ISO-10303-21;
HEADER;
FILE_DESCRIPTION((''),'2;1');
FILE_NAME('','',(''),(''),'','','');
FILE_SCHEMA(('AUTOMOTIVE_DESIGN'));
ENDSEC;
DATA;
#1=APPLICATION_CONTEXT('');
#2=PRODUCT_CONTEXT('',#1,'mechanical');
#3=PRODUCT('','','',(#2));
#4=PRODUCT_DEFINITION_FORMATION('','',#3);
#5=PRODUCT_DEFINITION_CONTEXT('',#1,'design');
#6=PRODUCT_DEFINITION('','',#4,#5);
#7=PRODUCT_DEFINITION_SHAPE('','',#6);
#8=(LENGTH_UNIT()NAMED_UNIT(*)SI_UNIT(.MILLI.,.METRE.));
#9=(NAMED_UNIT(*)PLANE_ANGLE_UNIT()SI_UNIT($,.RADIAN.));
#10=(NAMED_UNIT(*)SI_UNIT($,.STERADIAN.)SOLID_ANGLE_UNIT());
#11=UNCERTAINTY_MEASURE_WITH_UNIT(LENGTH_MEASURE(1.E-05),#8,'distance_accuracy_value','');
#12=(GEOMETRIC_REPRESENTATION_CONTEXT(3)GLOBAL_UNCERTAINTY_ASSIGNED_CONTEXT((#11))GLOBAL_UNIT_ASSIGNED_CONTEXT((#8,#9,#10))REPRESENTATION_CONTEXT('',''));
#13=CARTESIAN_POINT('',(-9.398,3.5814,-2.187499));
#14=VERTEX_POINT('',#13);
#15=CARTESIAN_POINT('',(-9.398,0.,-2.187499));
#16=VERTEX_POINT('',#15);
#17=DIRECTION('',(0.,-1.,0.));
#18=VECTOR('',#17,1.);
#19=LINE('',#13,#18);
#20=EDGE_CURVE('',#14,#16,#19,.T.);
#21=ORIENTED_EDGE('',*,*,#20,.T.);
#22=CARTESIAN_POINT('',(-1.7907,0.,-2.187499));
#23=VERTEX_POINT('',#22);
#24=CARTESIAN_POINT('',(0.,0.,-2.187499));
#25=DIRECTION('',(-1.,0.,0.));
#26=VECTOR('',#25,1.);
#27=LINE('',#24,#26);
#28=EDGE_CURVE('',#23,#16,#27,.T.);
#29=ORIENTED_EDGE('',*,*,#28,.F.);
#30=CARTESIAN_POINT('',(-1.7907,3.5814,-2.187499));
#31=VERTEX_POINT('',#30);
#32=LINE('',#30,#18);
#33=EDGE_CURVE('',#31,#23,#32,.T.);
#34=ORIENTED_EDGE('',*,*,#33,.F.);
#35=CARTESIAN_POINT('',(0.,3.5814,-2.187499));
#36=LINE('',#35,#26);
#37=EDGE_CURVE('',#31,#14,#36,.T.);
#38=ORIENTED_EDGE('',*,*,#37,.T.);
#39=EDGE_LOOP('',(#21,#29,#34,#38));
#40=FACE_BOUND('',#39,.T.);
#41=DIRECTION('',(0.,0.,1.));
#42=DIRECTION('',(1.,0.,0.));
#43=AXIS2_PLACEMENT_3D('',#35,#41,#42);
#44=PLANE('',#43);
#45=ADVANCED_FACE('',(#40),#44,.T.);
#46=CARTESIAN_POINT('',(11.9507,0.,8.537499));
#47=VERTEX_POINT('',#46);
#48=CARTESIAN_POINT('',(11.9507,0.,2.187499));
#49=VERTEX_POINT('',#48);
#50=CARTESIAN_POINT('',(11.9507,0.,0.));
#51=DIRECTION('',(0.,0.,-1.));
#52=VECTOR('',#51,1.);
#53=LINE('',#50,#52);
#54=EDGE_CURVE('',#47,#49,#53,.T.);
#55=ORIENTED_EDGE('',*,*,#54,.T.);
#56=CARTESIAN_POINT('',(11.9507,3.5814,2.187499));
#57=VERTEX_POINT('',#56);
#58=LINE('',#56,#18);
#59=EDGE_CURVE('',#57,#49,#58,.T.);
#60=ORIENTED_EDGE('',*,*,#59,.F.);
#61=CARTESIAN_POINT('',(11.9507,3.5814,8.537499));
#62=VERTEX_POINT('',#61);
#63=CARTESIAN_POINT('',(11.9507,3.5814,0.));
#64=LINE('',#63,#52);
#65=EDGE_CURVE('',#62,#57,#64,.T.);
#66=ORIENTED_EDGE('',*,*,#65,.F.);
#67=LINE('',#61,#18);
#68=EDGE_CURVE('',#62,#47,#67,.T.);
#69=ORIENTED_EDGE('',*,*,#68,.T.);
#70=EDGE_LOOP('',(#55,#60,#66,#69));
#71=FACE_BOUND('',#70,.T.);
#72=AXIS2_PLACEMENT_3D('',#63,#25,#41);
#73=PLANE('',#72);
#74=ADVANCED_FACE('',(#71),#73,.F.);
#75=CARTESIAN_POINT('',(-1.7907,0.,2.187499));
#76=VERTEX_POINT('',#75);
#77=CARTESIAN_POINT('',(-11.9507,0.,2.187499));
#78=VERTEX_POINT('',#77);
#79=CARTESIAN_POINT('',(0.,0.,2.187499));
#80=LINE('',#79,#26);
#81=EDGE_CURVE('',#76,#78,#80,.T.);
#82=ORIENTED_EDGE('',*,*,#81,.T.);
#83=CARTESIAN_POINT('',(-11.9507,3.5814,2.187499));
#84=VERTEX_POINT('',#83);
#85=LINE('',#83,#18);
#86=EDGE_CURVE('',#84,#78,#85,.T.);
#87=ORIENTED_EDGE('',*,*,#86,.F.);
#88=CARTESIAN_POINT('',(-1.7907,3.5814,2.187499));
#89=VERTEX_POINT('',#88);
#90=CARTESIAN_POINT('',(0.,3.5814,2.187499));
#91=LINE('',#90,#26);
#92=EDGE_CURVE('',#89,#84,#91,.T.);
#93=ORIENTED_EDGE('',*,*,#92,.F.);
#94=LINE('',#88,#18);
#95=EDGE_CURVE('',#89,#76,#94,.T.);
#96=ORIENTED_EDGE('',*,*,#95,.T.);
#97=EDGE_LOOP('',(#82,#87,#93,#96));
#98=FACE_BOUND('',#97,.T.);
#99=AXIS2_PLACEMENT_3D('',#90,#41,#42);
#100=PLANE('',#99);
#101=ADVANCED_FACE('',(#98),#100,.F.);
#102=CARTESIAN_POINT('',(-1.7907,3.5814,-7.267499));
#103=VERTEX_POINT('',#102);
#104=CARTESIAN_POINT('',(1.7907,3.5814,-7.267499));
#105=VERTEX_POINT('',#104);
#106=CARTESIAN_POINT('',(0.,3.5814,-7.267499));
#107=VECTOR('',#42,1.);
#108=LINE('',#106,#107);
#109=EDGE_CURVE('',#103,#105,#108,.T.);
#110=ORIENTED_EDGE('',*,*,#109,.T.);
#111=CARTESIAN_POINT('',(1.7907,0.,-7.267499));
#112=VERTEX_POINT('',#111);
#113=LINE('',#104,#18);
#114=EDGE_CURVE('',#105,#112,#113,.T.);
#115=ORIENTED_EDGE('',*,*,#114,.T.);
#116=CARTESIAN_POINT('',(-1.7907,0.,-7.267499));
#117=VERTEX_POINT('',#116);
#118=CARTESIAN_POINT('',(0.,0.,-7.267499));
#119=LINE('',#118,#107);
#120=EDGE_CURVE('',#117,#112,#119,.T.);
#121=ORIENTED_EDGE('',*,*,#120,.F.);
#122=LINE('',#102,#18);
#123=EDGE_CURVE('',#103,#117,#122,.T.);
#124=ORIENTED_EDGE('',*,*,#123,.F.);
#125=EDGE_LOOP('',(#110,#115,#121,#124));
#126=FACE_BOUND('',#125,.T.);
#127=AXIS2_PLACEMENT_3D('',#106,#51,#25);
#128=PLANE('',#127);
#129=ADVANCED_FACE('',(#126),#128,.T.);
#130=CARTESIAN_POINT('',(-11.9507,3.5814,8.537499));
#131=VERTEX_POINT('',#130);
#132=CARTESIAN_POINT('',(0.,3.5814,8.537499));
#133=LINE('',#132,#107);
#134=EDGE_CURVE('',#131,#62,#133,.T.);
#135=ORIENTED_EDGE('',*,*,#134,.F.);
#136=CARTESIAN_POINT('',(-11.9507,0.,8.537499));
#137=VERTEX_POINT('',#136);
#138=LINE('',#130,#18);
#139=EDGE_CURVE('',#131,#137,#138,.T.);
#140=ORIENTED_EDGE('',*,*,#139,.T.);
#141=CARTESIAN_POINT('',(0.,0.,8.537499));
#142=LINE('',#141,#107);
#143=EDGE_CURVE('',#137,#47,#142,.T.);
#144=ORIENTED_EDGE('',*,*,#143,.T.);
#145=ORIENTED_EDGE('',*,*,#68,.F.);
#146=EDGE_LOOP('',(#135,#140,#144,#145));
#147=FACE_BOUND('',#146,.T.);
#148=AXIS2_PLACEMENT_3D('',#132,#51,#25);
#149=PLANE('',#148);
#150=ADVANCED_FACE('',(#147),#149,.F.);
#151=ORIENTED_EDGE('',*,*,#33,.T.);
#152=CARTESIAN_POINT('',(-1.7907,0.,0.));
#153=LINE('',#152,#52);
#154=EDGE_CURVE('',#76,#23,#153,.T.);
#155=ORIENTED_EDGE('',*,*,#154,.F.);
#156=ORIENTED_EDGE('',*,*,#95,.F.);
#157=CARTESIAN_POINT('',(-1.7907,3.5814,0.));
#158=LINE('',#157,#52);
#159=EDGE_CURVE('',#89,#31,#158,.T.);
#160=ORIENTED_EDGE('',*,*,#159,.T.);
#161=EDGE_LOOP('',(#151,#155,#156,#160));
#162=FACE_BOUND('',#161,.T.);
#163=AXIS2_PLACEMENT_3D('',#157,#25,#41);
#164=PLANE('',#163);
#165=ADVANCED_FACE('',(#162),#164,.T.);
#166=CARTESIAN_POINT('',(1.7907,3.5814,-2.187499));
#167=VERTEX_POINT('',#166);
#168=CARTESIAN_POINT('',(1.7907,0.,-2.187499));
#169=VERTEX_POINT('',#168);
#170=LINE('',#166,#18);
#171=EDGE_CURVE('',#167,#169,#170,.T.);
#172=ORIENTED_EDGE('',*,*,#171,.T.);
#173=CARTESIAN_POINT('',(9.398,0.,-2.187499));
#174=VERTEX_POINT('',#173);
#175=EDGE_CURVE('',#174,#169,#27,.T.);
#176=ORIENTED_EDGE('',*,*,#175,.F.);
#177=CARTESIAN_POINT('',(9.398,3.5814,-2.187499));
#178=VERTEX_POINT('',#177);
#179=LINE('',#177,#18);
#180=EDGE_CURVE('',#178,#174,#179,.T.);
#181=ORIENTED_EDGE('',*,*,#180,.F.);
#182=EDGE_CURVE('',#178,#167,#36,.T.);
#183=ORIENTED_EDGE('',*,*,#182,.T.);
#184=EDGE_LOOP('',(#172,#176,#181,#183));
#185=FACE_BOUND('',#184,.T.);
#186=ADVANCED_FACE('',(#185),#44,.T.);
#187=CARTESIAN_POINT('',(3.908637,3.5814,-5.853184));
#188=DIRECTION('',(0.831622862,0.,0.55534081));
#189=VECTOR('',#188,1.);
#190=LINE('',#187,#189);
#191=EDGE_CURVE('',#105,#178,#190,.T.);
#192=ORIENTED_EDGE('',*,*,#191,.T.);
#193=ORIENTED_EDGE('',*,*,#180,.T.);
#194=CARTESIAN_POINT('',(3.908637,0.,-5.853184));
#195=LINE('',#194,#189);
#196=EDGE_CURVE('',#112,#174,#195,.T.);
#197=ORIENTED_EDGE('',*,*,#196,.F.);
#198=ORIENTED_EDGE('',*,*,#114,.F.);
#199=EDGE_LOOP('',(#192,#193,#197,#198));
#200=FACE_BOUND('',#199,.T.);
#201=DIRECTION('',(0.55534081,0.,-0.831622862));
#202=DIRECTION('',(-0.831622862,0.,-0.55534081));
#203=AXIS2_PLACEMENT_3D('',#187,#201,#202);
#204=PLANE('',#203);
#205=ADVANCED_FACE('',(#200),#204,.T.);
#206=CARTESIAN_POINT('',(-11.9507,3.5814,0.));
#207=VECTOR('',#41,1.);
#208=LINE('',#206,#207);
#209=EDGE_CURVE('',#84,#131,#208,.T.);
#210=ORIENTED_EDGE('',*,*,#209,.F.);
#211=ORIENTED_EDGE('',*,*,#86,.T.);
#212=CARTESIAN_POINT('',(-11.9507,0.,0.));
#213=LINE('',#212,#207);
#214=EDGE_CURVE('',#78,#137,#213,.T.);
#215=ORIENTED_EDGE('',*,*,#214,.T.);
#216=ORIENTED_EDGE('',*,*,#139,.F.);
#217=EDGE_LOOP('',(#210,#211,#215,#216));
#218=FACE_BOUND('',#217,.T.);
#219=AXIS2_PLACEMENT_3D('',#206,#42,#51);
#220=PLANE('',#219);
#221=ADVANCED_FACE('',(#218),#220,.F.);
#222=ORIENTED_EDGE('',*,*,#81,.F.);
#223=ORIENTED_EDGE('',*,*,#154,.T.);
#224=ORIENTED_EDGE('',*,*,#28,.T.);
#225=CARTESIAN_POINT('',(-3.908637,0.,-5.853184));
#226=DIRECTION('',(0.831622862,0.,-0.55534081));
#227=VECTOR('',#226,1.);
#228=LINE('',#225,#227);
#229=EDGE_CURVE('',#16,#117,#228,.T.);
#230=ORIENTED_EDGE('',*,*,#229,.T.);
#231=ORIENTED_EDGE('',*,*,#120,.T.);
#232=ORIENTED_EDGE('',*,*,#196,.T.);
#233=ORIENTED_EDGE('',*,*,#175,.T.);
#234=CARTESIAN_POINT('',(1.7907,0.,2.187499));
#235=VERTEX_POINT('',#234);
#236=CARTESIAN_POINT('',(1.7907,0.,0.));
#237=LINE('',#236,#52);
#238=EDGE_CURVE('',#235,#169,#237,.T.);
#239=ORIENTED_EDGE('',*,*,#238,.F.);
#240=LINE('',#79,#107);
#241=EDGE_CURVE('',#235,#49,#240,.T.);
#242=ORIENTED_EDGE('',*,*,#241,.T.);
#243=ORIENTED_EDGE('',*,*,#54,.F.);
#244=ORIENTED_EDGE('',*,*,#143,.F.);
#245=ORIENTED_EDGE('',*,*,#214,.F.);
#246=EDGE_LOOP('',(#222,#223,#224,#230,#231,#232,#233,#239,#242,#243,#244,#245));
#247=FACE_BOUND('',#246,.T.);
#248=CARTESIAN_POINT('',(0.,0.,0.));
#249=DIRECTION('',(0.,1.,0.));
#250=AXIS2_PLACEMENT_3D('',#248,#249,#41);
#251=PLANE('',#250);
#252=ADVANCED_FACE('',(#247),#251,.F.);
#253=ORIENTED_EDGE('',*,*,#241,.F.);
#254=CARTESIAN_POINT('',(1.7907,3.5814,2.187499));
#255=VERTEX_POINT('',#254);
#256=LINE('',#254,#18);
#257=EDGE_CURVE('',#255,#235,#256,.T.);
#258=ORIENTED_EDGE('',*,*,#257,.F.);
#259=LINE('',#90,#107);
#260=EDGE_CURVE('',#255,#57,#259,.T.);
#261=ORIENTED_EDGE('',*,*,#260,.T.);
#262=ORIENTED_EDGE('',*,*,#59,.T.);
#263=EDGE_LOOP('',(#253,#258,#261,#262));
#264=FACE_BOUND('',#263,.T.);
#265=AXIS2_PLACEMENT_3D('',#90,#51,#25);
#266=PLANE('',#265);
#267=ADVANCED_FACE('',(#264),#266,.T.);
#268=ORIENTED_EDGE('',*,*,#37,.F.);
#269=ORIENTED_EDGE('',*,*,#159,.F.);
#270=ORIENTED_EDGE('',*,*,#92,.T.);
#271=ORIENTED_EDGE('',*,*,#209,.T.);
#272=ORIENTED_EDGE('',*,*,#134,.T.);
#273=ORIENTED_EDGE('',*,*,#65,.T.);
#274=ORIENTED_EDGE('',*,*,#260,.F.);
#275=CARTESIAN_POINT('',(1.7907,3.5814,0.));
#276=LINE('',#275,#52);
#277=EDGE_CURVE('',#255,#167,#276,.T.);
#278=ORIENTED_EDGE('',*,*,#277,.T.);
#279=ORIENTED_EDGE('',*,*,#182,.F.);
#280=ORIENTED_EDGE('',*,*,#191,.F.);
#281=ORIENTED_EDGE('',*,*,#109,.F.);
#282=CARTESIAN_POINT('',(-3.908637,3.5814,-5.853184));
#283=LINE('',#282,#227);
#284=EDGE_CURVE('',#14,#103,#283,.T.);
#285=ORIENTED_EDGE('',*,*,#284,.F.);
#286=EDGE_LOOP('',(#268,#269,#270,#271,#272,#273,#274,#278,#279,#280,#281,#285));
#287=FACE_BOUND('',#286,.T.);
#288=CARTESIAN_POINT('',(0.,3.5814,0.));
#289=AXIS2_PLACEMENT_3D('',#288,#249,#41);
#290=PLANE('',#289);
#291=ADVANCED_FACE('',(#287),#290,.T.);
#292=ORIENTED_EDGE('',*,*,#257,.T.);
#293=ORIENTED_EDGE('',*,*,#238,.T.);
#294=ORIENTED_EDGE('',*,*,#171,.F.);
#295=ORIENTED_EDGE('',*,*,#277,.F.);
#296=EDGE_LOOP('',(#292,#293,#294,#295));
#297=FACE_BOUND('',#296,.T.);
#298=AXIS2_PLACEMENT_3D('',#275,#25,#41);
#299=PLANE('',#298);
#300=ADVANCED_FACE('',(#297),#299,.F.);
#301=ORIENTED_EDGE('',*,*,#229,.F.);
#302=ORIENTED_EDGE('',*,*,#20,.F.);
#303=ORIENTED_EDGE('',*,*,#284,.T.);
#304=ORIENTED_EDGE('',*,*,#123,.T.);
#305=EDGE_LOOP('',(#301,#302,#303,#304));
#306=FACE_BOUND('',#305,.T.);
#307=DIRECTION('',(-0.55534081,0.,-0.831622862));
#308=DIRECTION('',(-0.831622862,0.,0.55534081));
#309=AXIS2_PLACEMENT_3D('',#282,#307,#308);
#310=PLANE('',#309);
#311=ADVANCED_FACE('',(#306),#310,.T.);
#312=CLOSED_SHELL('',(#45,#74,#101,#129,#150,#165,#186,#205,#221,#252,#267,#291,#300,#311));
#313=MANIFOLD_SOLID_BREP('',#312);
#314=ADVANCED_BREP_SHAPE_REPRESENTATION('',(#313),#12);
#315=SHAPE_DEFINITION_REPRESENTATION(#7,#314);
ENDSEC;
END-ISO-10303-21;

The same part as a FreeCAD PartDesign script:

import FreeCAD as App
import Part
import Sketcher
Q = App.Units.Quantity


def add_polygon(sketch, points):
    """Adds a closed chain of lines whose ends are joined by coincident constraints."""
    first, n = sketch.GeometryCount, len(points)
    for a, b in zip(points, points[1:] + points[:1]):
        sketch.addGeometry(Part.LineSegment(App.Vector(*a, 0), App.Vector(*b, 0)), False)
    for i in range(n):
        sketch.addConstraint(Sketcher.Constraint("Coincident", first + i, 2, first + (i + 1) % n, 1))

doc = App.newDocument("Part")
body = doc.addObject("PartDesign::Body", "Body")

# Sketch on XZ plane
sketch1 = body.newObject("Sketcher::SketchObject", "Sketch")
sketch1.AttachmentSupport = (doc.getObject("XZ_Plane"), [""])
sketch1.MapMode = "FlatFace"
add_polygon(sketch1, [(-11.9507, 8.537499), (11.9507, 8.537499), (11.9507, 2.187499), (1.7907, 2.187499), (1.7907, -2.187499), (9.398, -2.187499), (1.7907, -7.267499), (-1.7907, -7.267499), (-9.398, -2.187499), (-1.7907, -2.187499), (-1.7907, 2.187499), (-11.9507, 2.187499)])  # lines 0-11
sketch1.addConstraint(Sketcher.Constraint("Horizontal", 0))
sketch1.addConstraint(Sketcher.Constraint("Vertical", 1))
sketch1.addConstraint(Sketcher.Constraint("Horizontal", 2))
sketch1.addConstraint(Sketcher.Constraint("Vertical", 3))
sketch1.addConstraint(Sketcher.Constraint("Horizontal", 4))
sketch1.addConstraint(Sketcher.Constraint("Horizontal", 6))
sketch1.addConstraint(Sketcher.Constraint("Horizontal", 8))
sketch1.addConstraint(Sketcher.Constraint("Vertical", 9))
sketch1.addConstraint(Sketcher.Constraint("Horizontal", 10))
sketch1.addConstraint(Sketcher.Constraint("Vertical", 11))
sketch1.addConstraint(Sketcher.Constraint("Symmetric", 2, 2, 8, 2, -1, 1))
sketch1.addConstraint(Sketcher.Constraint("Symmetric", 4, 2, 7, 2, -2))
sketch1.addConstraint(Sketcher.Constraint("Symmetric", 1, 2, 10, 2, -2))
sketch1.addConstraint(Sketcher.Constraint("Vertical", 3, 2, 5, 2))
sketch1.addConstraint(Sketcher.Constraint("Vertical", 6, 2, 8, 2))
sketch1.addConstraint(Sketcher.Constraint("DistanceX", 2, 2, 2, 1, Q("0.4 in")))
sketch1.addConstraint(Sketcher.Constraint("DistanceY", 1, 2, 1, 1, Q("0.25 in")))
sketch1.addConstraint(Sketcher.Constraint("DistanceY", 5, 2, 3, 2, Q("0.2 in")))
sketch1.addConstraint(Sketcher.Constraint("DistanceX", 0, 1, 0, 2, Q("0.941 in")))
sketch1.addConstraint(Sketcher.Constraint("DistanceX", -1, 1, 4, 2, Q("0.37 in")))
sketch1.addConstraint(Sketcher.Constraint("DistanceY", -1, 1, 0, 2, 8.537499))
pad1 = body.newObject("PartDesign::Pad", "Pad")
pad1.Profile = sketch1
pad1.Length = Q("0.141 in")
pad1.Reversed = True

doc.recompute()
